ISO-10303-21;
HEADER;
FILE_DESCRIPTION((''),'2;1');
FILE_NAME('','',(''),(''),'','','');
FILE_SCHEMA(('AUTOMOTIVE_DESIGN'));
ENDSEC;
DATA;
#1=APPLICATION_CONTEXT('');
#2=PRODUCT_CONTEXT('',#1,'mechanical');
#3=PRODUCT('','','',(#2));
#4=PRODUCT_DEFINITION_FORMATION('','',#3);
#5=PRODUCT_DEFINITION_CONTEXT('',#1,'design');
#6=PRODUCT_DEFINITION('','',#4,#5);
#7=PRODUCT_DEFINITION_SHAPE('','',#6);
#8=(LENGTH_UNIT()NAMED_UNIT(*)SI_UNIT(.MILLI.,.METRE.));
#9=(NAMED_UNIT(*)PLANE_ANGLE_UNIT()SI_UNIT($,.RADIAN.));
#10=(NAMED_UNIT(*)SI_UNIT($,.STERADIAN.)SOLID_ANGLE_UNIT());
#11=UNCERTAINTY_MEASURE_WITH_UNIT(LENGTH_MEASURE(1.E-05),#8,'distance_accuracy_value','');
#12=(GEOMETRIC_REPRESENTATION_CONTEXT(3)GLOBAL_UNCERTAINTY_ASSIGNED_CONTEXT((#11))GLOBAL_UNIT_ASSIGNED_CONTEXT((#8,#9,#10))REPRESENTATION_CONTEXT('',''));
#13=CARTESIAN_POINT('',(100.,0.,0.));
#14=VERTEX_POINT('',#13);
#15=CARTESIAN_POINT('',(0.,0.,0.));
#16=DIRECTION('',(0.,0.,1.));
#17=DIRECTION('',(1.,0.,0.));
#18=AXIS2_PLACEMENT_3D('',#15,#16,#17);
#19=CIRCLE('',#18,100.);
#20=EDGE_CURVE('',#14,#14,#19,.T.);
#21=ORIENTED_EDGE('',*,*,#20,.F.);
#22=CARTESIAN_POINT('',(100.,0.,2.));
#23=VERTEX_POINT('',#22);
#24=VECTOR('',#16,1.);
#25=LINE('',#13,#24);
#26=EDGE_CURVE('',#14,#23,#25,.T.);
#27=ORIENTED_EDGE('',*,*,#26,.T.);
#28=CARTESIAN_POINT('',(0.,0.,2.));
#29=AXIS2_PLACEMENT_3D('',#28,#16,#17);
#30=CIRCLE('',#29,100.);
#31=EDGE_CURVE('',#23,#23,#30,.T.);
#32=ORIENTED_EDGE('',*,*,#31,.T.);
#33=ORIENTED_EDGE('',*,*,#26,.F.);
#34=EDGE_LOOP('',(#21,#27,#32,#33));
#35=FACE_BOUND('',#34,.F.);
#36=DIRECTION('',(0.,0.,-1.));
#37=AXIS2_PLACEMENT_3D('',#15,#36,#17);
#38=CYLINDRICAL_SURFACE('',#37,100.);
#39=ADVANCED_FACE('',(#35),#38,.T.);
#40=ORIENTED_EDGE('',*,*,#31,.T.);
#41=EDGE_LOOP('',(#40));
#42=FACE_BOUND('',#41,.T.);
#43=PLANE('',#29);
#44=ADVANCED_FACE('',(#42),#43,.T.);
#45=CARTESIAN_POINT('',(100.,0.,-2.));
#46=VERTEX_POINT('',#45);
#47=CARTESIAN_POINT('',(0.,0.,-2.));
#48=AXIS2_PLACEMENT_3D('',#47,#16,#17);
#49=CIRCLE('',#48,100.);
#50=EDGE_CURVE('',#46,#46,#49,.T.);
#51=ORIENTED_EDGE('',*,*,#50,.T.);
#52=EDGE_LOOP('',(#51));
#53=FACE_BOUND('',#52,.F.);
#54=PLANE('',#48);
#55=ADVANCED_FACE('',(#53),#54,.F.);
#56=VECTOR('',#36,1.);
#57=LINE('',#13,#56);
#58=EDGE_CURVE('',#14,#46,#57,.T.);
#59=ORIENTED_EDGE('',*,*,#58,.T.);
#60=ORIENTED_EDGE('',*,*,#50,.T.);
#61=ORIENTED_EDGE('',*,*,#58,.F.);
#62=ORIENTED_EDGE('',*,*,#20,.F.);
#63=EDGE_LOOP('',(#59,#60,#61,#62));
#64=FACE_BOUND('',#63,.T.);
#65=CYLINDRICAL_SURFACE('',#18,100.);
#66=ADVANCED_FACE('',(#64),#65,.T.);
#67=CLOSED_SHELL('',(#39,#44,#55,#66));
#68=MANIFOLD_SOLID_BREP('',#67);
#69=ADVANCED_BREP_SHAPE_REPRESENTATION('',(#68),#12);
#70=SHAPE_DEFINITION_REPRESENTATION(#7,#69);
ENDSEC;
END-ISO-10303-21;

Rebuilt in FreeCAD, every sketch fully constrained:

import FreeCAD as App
import Part
import Sketcher

V = App.Vector

doc = App.newDocument("Part")
body = doc.addObject("PartDesign::Body", "Body")

sketch1 = doc.addObject("Sketcher::SketchObject", "Sketch")
body.addObject(sketch1)
sketch1.AttachmentSupport = (doc.XY_Plane, [""])
sketch1.MapMode = "FlatFace"
sketch1.addGeometry(Part.Circle(V(0, 0, 0), V(0, 0, 1), 100), False)
sketch1.addConstraint([
    Sketcher.Constraint("Coincident", 0, 3, -1, 1),
    Sketcher.Constraint("Diameter", 0, 200.0),
])
pad1 = doc.addObject("PartDesign::Pad", "Pad")
body.addObject(pad1)
pad1.Profile = sketch1
pad1.Length = 4
pad1.Midplane = True

doc.recompute()
